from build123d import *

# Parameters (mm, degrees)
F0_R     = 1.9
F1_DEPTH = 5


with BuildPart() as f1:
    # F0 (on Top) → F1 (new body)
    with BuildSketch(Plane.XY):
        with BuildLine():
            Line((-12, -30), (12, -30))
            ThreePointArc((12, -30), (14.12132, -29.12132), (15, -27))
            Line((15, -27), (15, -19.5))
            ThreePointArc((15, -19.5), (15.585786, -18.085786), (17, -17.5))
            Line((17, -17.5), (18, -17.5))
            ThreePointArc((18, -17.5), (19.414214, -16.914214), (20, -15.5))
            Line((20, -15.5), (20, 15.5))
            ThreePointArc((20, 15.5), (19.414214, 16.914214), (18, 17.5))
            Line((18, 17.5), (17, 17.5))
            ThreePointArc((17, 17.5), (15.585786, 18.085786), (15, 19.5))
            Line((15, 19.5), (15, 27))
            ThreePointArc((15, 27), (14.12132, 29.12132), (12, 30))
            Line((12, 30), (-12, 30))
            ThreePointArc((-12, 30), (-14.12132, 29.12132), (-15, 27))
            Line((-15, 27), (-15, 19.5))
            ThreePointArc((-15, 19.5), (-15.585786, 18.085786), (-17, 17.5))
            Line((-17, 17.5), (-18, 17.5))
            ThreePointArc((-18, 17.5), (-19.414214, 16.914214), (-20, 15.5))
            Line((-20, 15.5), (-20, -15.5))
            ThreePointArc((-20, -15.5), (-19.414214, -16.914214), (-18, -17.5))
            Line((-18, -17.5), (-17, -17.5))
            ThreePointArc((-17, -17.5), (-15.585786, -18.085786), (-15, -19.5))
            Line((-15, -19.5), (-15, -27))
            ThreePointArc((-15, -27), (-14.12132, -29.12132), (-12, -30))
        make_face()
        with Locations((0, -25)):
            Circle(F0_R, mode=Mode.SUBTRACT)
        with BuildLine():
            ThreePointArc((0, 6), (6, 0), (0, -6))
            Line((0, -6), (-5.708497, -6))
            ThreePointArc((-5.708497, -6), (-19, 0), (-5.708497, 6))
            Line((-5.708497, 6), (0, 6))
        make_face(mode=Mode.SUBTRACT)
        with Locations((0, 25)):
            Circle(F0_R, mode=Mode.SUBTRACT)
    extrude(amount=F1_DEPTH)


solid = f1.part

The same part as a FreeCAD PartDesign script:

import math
import FreeCAD as App
import Part
import Sketcher

V = App.Vector

doc = App.newDocument("Part")
body = doc.addObject("PartDesign::Body", "Body")

# Sketch on XY plane
sketch1 = body.newObject("Sketcher::SketchObject", "Sketch")
sketch1.AttachmentSupport = (doc.getObject("XY_Plane"), [""])
sketch1.MapMode = "FlatFace"
sketch1.addGeometry([
    Part.LineSegment(V(-12, -30, 0), V(12, -30, 0)),  # 0
    Part.ArcOfCircle(Part.Circle(V(12, -27, 0), V(0, 0, 1), 3), math.radians(-90), math.radians(0)),  # 1
    Part.LineSegment(V(15, -27, 0), V(15, -19.5, 0)),  # 2
    Part.ArcOfCircle(Part.Circle(V(17, -19.5, 0), V(0, 0, 1), 2), math.radians(90), math.radians(180)),  # 3
    Part.LineSegment(V(17, -17.5, 0), V(18, -17.5, 0)),  # 4
    Part.ArcOfCircle(Part.Circle(V(18, -15.5, 0), V(0, 0, 1), 2), math.radians(-90), math.radians(0)),  # 5
    Part.LineSegment(V(20, -15.5, 0), V(20, 15.5, 0)),  # 6
    Part.ArcOfCircle(Part.Circle(V(18, 15.5, 0), V(0, 0, 1), 2), math.radians(0), math.radians(90)),  # 7
    Part.LineSegment(V(18, 17.5, 0), V(17, 17.5, 0)),  # 8
    Part.ArcOfCircle(Part.Circle(V(17, 19.5, 0), V(0, 0, 1), 2), math.radians(180), math.radians(270)),  # 9
    Part.LineSegment(V(15, 19.5, 0), V(15, 27, 0)),  # 10
    Part.ArcOfCircle(Part.Circle(V(12, 27, 0), V(0, 0, 1), 3), math.radians(0), math.radians(90)),  # 11
    Part.LineSegment(V(12, 30, 0), V(-12, 30, 0)),  # 12
    Part.ArcOfCircle(Part.Circle(V(-12, 27, 0), V(0, 0, 1), 3), math.radians(90), math.radians(180)),  # 13
    Part.LineSegment(V(-15, 27, 0), V(-15, 19.5, 0)),  # 14
    Part.ArcOfCircle(Part.Circle(V(-17, 19.5, 0), V(0, 0, 1), 2), math.radians(-90), math.radians(0)),  # 15
    Part.LineSegment(V(-17, 17.5, 0), V(-18, 17.5, 0)),  # 16
    Part.ArcOfCircle(Part.Circle(V(-18, 15.5, 0), V(0, 0, 1), 2), math.radians(90), math.radians(180)),  # 17
    Part.LineSegment(V(-20, 15.5, 0), V(-20, -15.5, 0)),  # 18
    Part.ArcOfCircle(Part.Circle(V(-18, -15.5, 0), V(0, 0, 1), 2), math.radians(180), math.radians(270)),  # 19
    Part.LineSegment(V(-18, -17.5, 0), V(-17, -17.5, 0)),  # 20
    Part.ArcOfCircle(Part.Circle(V(-17, -19.5, 0), V(0, 0, 1), 2), math.radians(0), math.radians(90)),  # 21
    Part.LineSegment(V(-15, -19.5, 0), V(-15, -27, 0)),  # 22
    Part.ArcOfCircle(Part.Circle(V(-12, -27, 0), V(0, 0, 1), 3), math.radians(-180), math.radians(-90)),  # 23
    Part.Circle(V(0, -25, 0), V(0, 0, 1), 1.9),  # 24
    Part.LineSegment(V(-5.7, 6, 0), V(0, 6, 0)),  # 25
    Part.ArcOfCircle(Part.Circle(V(0, 0, 0), V(0, 0, 1), 6), math.radians(-90), math.radians(90)),  # 26
    Part.LineSegment(V(0, -6, 0), V(-5.7, -6, 0)),  # 27
    Part.ArcOfCircle(Part.Circle(V(-11, 0, 0), V(0, 0, 1), 8), math.radians(49), math.radians(311)),  # 28
    Part.Circle(V(0, 25, 0), V(0, 0, 1), 1.9),  # 29
], False)
sketch1.addConstraint([
    Sketcher.Constraint("Tangent", 0, 2, 1, 1),
    Sketcher.Constraint("Tangent", 1, 2, 2, 1),
    Sketcher.Constraint("Tangent", 2, 2, 3, 2),
    Sketcher.Constraint("Tangent", 3, 1, 4, 1),
    Sketcher.Constraint("Tangent", 4, 2, 5, 1),
    Sketcher.Constraint("Tangent", 5, 2, 6, 1),
    Sketcher.Constraint("Tangent", 6, 2, 7, 1),
    Sketcher.Constraint("Tangent", 7, 2, 8, 1),
    Sketcher.Constraint("Tangent", 8, 2, 9, 2),
    Sketcher.Constraint("Tangent", 9, 1, 10, 1),
    Sketcher.Constraint("Tangent", 10, 2, 11, 1),
    Sketcher.Constraint("Tangent", 11, 2, 12, 1),
    Sketcher.Constraint("Tangent", 12, 2, 13, 1),
    Sketcher.Constraint("Tangent", 13, 2, 14, 1),
    Sketcher.Constraint("Tangent", 14, 2, 15, 2),
    Sketcher.Constraint("Tangent", 15, 1, 16, 1),
    Sketcher.Constraint("Tangent", 16, 2, 17, 1),
    Sketcher.Constraint("Tangent", 17, 2, 18, 1),
    Sketcher.Constraint("Tangent", 18, 2, 19, 1),
    Sketcher.Constraint("Tangent", 19, 2, 20, 1),
    Sketcher.Constraint("Tangent", 20, 2, 21, 2),
    Sketcher.Constraint("Tangent", 21, 1, 22, 1),
    Sketcher.Constraint("Tangent", 22, 2, 23, 1),
    Sketcher.Constraint("Tangent", 23, 2, 0, 1),
    Sketcher.Constraint("Tangent", 25, 2, 26, 2),
    Sketcher.Constraint("Tangent", 26, 1, 27, 1),
    Sketcher.Constraint("Coincident", 27, 2, 28, 2),
    Sketcher.Constraint("Coincident", 28, 1, 25, 1),
    Sketcher.Constraint("Horizontal", 0),
    Sketcher.Constraint("Vertical", 2),
    Sketcher.Constraint("Horizontal", 4),
    Sketcher.Constraint("Vertical", 6),
    Sketcher.Constraint("Horizontal", 8),
    Sketcher.Constraint("Vertical", 10),
    Sketcher.Constraint("Horizontal", 12),
    Sketcher.Constraint("Vertical", 14),
    Sketcher.Constraint("Horizontal", 16),
    Sketcher.Constraint("Vertical", 18),
    Sketcher.Constraint("Horizontal", 20),
    Sketcher.Constraint("Vertical", 22),
    Sketcher.Constraint("Horizontal", 25),
    Sketcher.Constraint("Horizontal", 27),
    Sketcher.Constraint("Coincident", 26, 3, -1, 1),
    Sketcher.Constraint("Equal", 3, 5),
    Sketcher.Constraint("Equal", 5, 7),
    Sketcher.Constraint("Equal", 7, 9),
    Sketcher.Constraint("Equal", 1, 11),
    Sketcher.Constraint("Equal", 11, 13),
    Sketcher.Constraint("Equal", 9, 15),
    Sketcher.Constraint("Equal", 15, 17),
    Sketcher.Constraint("Equal", 17, 19),
    Sketcher.Constraint("Equal", 19, 21),
    Sketcher.Constraint("Equal", 13, 23),
    Sketcher.Constraint("Equal", 24, 29),
    Sketcher.Constraint("Symmetric", 1, 3, 13, 3, -1, 1),
    Sketcher.Constraint("Symmetric", 5, 3, 17, 3, -1, 1),
    Sketcher.Constraint("Symmetric", 9, 3, 21, 3, -1, 1),
    Sketcher.Constraint("Symmetric", 24, 3, 29, 3, -1, 1),
    Sketcher.Constraint("Symmetric", 9, 3, 15, 3, -2),
    Sketcher.Constraint("PointOnObject", 24, 3, -2),
    Sketcher.Constraint("PointOnObject", 28, 3, -1),
    Sketcher.Constraint("Radius", 1, 3.000001),
    Sketcher.Constraint("Radius", 3, 1.999999),
    Sketcher.Constraint("Radius", 26, 6.0),
    Sketcher.Constraint("Radius", 28, 8.0),
    Sketcher.Constraint("Diameter", 24, 3.8),
    Sketcher.Constraint("DistanceX", 0, 1, 0, 2, 24.0),
    Sketcher.Constraint("DistanceX", 4, 1, 4, 2, 1.0),
    Sketcher.Constraint("DistanceY", 6, 1, 6, 2, 31.0),
    Sketcher.Constraint("DistanceY", 2, 1, 2, 2, 7.5),
    Sketcher.Constraint("DistanceY", 24, 3, -1, 1, 25.0),
    Sketcher.Constraint("DistanceX", 28, 3, -1, 1, 11.0),
])
pad1 = body.newObject("PartDesign::Pad", "Pad")
pad1.Profile = sketch1
pad1.Length = 5

doc.recompute()
